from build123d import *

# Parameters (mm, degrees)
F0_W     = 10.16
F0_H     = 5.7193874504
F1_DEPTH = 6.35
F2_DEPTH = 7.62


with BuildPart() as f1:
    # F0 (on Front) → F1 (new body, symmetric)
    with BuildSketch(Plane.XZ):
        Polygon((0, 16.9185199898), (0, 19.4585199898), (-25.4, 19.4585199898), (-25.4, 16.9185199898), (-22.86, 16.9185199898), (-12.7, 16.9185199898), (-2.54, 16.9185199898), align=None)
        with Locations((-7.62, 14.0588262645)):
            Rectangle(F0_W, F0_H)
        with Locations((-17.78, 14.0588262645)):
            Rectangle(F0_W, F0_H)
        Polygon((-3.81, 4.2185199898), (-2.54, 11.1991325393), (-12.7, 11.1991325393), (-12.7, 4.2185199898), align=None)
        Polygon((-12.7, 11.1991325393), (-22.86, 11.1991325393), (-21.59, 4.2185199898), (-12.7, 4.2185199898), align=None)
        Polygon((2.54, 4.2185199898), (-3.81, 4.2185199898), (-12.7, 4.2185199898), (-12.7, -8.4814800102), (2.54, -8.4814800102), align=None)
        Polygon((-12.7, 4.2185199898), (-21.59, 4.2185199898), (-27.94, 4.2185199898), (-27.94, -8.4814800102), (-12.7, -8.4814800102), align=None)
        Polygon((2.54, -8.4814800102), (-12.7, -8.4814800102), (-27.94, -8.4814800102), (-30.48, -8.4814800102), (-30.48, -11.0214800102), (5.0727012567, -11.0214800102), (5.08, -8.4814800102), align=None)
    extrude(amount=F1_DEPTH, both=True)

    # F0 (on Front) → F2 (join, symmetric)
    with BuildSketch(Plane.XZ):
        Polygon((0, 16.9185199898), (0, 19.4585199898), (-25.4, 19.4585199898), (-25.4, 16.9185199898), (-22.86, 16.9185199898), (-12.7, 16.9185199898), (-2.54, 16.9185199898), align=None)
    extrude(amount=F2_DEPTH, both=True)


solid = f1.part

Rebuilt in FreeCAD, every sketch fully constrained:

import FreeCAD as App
import Part
import Sketcher

V = App.Vector
Q = App.Units.Quantity


def add_polygon(sketch, points):
    """Adds a closed chain of lines whose ends are joined by coincident constraints."""
    first, n = sketch.GeometryCount, len(points)
    for a, b in zip(points, points[1:] + points[:1]):
        sketch.addGeometry(Part.LineSegment(App.Vector(*a, 0), App.Vector(*b, 0)), False)
    for i in range(n):
        sketch.addConstraint(Sketcher.Constraint("Coincident", first + i, 2, first + (i + 1) % n, 1))

doc = App.newDocument("Part")
body = doc.addObject("PartDesign::Body", "Body")

sketch1 = doc.addObject("Sketcher::SketchObject", "Sketch")
body.addObject(sketch1)
sketch1.AttachmentSupport = (doc.XZ_Plane, [""])
sketch1.MapMode = "FlatFace"
add_polygon(sketch1, [(0, 16.9), (0, 19.5), (-25.4, 19.5), (-25.4, 16.9), (-22.9, 16.9), (-22.9, 11.2), (-21.6, 4.2), (-27.9, 4.2), (-27.9, -8.5), (-30.5, -8.5), (-30.5, -11), (5.1, -11), (5.1, -8.5), (2.5, -8.5), (2.5, 4.2), (-3.8, 4.2), (-2.5, 11.2), (-2.5, 16.9)])
sketch1.addConstraint([
    Sketcher.Constraint("Vertical", 0),
    Sketcher.Constraint("Horizontal", 1),
    Sketcher.Constraint("Vertical", 2),
    Sketcher.Constraint("Horizontal", 3),
    Sketcher.Constraint("Vertical", 4),
    Sketcher.Constraint("Horizontal", 6),
    Sketcher.Constraint("Vertical", 7),
    Sketcher.Constraint("Horizontal", 8),
    Sketcher.Constraint("Vertical", 9),
    Sketcher.Constraint("Horizontal", 10),
    Sketcher.Constraint("Horizontal", 12),
    Sketcher.Constraint("Vertical", 13),
    Sketcher.Constraint("Horizontal", 14),
    Sketcher.Constraint("Vertical", 16),
    Sketcher.Constraint("Horizontal", 17),
    Sketcher.Constraint("PointOnObject", 0, 2, -2),
    Sketcher.Constraint("Horizontal", 8, 2, 11, 2),
    Sketcher.Constraint("Horizontal", 6, 2, 13, 2),
    Sketcher.Constraint("Horizontal", 4, 2, 15, 2),
    Sketcher.Constraint("Horizontal", 3, 2, 16, 2),
    Sketcher.Constraint("Equal", 3, 8),
    Sketcher.Constraint("Equal", 8, 12),
    Sketcher.Constraint("Equal", 6, 14),
    Sketcher.Constraint("Equal", 12, 17),
    Sketcher.Constraint("Equal", 17, 0),
    Sketcher.Constraint("Equal", 2, 9),
    Sketcher.Constraint("Equal", 5, 15),
    Sketcher.Constraint("DistanceX", 1, 2, 1, 1, Q("1 in")),
    Sketcher.Constraint("DistanceX", 3, 1, 3, 2, Q("0.1 in")),
    Sketcher.Constraint("DistanceY", 7, 2, 7, 1, Q("0.5 in")),
    Sketcher.Constraint("DistanceY", 7, 2, 2, 2, Q("1 in")),
    Sketcher.Constraint("DistanceX", 6, 2, 6, 1, Q("0.25 in")),
    Sketcher.Constraint("DistanceX", 6, 2, -1, 1, Q("1.1 in")),
    Sketcher.Constraint("DistanceX", 10, 1, 10, 2, 35.552701),
    Sketcher.Constraint("Distance", 5, 7.095199),
    Sketcher.Constraint("DistanceY", -1, 1, 0, 2, 19.45852),
])
pad1 = doc.addObject("PartDesign::Pad", "Pad")
body.addObject(pad1)
pad1.Profile = sketch1
pad1.Length = Q("0.5 in")
pad1.Midplane = True

sketch2 = doc.addObject("Sketcher::SketchObject", "Sketch001")
body.addObject(sketch2)
sketch2.AttachmentSupport = (doc.XZ_Plane, [""])
sketch2.MapMode = "FlatFace"
add_polygon(sketch2, [(0, 16.9), (0, 19.5), (-25.4, 19.5), (-25.4, 16.9)])
sketch2.addConstraint([
    Sketcher.Constraint("Vertical", 0),
    Sketcher.Constraint("Horizontal", 1),
    Sketcher.Constraint("Vertical", 2),
    Sketcher.Constraint("Horizontal", 3),
    Sketcher.Constraint("PointOnObject", 0, 2, -2),
    Sketcher.Constraint("DistanceX", 1, 2, 1, 1, Q("1 in")),
    Sketcher.Constraint("DistanceY", 0, 1, 0, 2, Q("0.1 in")),
    Sketcher.Constraint("DistanceY", -1, 1, 0, 2, 19.45852),
])
pad2 = doc.addObject("PartDesign::Pad", "Pad001")
body.addObject(pad2)
pad2.Profile = sketch2
pad2.Length = Q("0.6 in")
pad2.Midplane = True

doc.recompute()
